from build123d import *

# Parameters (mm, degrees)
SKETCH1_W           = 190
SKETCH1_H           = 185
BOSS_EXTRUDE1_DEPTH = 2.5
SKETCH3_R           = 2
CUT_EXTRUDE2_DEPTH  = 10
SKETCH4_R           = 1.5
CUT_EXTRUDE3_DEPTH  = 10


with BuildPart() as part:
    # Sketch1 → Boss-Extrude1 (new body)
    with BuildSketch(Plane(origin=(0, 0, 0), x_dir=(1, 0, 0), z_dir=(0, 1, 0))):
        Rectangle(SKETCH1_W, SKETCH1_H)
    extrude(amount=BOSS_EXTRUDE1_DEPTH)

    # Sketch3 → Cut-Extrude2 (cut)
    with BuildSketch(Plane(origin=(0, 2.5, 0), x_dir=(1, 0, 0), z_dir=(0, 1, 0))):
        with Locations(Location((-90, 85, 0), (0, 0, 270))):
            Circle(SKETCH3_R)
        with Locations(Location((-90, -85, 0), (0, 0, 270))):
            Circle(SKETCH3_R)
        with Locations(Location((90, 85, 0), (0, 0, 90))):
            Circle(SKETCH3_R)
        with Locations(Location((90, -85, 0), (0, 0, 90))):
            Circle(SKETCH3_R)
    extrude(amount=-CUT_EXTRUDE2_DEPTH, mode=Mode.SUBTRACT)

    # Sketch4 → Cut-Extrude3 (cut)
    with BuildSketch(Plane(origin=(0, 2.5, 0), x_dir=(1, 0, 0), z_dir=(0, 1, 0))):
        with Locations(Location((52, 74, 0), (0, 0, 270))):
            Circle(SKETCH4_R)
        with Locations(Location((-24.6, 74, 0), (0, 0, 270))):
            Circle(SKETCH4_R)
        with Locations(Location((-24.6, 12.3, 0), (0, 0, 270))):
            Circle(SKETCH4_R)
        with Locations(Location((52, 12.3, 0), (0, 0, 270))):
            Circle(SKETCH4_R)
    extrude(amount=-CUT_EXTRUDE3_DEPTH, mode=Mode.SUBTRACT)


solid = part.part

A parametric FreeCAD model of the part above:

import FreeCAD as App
import Part
import Sketcher
from FreeCAD import Vector

doc = App.newDocument("Part")
body = doc.addObject("PartDesign::Body", "Body")

sketch1 = body.newObject("Sketcher::SketchObject", "Sketch")
sketch1.AttachmentSupport = (doc.getObject("XZ_Plane"), [""])
sketch1.MapMode = "FlatFace"
sketch1.addGeometry(Part.LineSegment(Vector(-95, -92, 0), Vector(-95, 92, 0)), False)
sketch1.addGeometry(Part.LineSegment(Vector(-95, 92, 0), Vector(95, 92, 0)), False)
sketch1.addGeometry(Part.LineSegment(Vector(95, 92, 0), Vector(95, -92, 0)), False)
sketch1.addGeometry(Part.LineSegment(Vector(95, -92, 0), Vector(-95, -92, 0)), False)
sketch1.addConstraint(Sketcher.Constraint("Coincident", 0, 2, 1, 1))
sketch1.addConstraint(Sketcher.Constraint("Coincident", 1, 2, 2, 1))
sketch1.addConstraint(Sketcher.Constraint("Coincident", 2, 2, 3, 1))
sketch1.addConstraint(Sketcher.Constraint("Coincident", 3, 2, 0, 1))
sketch1.addConstraint(Sketcher.Constraint("Vertical", 0))
sketch1.addConstraint(Sketcher.Constraint("Horizontal", 1))
sketch1.addConstraint(Sketcher.Constraint("Vertical", 2))
sketch1.addConstraint(Sketcher.Constraint("Horizontal", 3))
sketch1.addConstraint(Sketcher.Constraint("Symmetric", 0, 2, 2, 2, -1, 1))
sketch1.addConstraint(Sketcher.Constraint("DistanceX", 1, 1, 1, 2, 190.0))
sketch1.addConstraint(Sketcher.Constraint("DistanceY", 0, 1, 0, 2, 185.0))
pad1 = body.newObject("PartDesign::Pad", "Pad")
pad1.Profile = sketch1
pad1.Length = 2.5
pad1.Reversed = True

sketch2 = body.newObject("Sketcher::SketchObject", "Sketch001")
sketch2.AttachmentSupport = (doc.getObject("XZ_Plane"), [""])
sketch2.MapMode = "FlatFace"
sketch2.AttachmentOffset = App.Placement(Vector(0, 0, -2.5), App.Rotation())
sketch2.addGeometry(Part.Circle(Vector(-90, -85, 0), Vector(0, 0, 1), 2), False)
sketch2.addGeometry(Part.Circle(Vector(-90, 85, 0), Vector(0, 0, 1), 2), False)
sketch2.addGeometry(Part.Circle(Vector(90, -85, 0), Vector(0, 0, 1), 2), False)
sketch2.addGeometry(Part.Circle(Vector(90, 85, 0), Vector(0, 0, 1), 2), False)
sketch2.addConstraint(Sketcher.Constraint("Equal", 0, 1))
sketch2.addConstraint(Sketcher.Constraint("Equal", 1, 2))
sketch2.addConstraint(Sketcher.Constraint("Equal", 2, 3))
sketch2.addConstraint(Sketcher.Constraint("Symmetric", 1, 3, 2, 3, -1, 1))
sketch2.addConstraint(Sketcher.Constraint("Symmetric", 0, 3, 3, 3, -1, 1))
sketch2.addConstraint(Sketcher.Constraint("Symmetric", 0, 3, 2, 3, -2))
sketch2.addConstraint(Sketcher.Constraint("Diameter", 0, 4.0))
sketch2.addConstraint(Sketcher.Constraint("DistanceX", 0, 3, -1, 1, 90.0))
sketch2.addConstraint(Sketcher.Constraint("DistanceY", 0, 3, -1, 1, 85.0))
pocket1 = body.newObject("PartDesign::Pocket", "Pocket")
pocket1.Profile = sketch2
pocket1.Length = 10
pocket1.Reversed = True

sketch3 = body.newObject("Sketcher::SketchObject", "Sketch002")
sketch3.AttachmentSupport = (doc.getObject("XZ_Plane"), [""])
sketch3.MapMode = "FlatFace"
sketch3.AttachmentOffset = App.Placement(Vector(0, 0, -2.5), App.Rotation())
sketch3.addGeometry(Part.Circle(Vector(52, -74, 0), Vector(0, 0, 1), 1.5), False)
sketch3.addGeometry(Part.Circle(Vector(-24.6, -74, 0), Vector(0, 0, 1), 1.5), False)
sketch3.addGeometry(Part.Circle(Vector(-24.6, -12.3, 0), Vector(0, 0, 1), 1.5), False)
sketch3.addGeometry(Part.Circle(Vector(52, -12.3, 0), Vector(0, 0, 1), 1.5), False)
sketch3.addConstraint(Sketcher.Constraint("Equal", 0, 1))
sketch3.addConstraint(Sketcher.Constraint("Equal", 1, 2))
sketch3.addConstraint(Sketcher.Constraint("Equal", 2, 3))
sketch3.addConstraint(Sketcher.Constraint("Horizontal", 0, 3, 1, 3))
sketch3.addConstraint(Sketcher.Constraint("Horizontal", 2, 3, 3, 3))
sketch3.addConstraint(Sketcher.Constraint("Vertical", 1, 3, 2, 3))
sketch3.addConstraint(Sketcher.Constraint("Vertical", 0, 3, 3, 3))
sketch3.addConstraint(Sketcher.Constraint("Diameter", 0, 3.0))
sketch3.addConstraint(Sketcher.Constraint("DistanceX", -1, 1, 0, 3, 52.0))
sketch3.addConstraint(Sketcher.Constraint("DistanceY", 0, 3, -1, 1, 74.0))
sketch3.addConstraint(Sketcher.Constraint("DistanceX", 1, 3, -1, 1, 24.6))
sketch3.addConstraint(Sketcher.Constraint("DistanceY", 2, 3, -1, 1, 12.3))
pocket2 = body.newObject("PartDesign::Pocket", "Pocket001")
pocket2.Profile = sketch3
pocket2.Length = 10
pocket2.Reversed = True

doc.recompute()
